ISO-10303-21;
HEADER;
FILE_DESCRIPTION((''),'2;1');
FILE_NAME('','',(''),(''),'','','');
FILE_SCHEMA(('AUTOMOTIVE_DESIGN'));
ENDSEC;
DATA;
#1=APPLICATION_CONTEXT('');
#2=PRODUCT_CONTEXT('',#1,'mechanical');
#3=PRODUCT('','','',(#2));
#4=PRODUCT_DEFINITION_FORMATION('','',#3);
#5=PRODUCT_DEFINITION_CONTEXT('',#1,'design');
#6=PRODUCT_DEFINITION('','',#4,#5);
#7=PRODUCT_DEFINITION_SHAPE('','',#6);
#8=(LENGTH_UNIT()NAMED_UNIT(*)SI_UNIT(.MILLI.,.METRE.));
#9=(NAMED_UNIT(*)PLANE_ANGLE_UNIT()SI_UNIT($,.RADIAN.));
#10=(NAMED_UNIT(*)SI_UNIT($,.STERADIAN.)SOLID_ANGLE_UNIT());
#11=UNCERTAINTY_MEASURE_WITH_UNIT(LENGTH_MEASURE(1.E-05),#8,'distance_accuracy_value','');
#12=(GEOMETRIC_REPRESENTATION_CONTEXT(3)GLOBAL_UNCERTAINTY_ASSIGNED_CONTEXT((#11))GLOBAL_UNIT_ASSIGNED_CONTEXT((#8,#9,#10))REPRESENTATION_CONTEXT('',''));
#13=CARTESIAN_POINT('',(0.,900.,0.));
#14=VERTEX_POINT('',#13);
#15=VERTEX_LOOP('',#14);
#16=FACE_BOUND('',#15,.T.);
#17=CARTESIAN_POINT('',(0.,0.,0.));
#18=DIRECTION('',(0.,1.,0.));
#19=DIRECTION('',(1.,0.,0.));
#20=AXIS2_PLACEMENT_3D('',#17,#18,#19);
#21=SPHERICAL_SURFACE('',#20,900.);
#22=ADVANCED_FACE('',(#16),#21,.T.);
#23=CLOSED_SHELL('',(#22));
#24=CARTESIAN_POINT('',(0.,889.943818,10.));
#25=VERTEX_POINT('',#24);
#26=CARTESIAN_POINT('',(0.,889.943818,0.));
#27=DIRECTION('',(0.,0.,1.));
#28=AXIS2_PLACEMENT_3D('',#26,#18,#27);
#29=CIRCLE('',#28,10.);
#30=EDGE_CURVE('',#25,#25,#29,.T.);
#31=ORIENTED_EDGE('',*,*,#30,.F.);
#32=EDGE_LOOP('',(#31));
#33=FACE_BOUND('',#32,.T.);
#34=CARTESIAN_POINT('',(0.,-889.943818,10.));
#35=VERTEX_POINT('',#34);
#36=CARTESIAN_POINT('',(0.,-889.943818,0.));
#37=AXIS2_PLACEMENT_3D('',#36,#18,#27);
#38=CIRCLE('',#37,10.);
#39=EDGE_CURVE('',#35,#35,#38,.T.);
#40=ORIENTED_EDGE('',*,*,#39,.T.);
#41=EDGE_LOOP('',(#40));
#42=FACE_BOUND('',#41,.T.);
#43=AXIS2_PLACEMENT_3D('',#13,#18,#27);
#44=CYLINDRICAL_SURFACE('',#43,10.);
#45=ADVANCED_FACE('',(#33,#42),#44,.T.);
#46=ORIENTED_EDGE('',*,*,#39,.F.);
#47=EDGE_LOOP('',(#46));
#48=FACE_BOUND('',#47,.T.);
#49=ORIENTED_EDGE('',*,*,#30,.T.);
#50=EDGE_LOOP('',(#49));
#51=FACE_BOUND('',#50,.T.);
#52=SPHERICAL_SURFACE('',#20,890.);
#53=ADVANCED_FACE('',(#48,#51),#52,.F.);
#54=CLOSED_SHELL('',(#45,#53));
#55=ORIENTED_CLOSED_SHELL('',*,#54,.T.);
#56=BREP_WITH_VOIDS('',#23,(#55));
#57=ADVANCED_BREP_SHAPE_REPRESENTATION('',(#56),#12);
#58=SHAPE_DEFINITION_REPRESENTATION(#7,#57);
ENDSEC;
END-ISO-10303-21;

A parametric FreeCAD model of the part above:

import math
import FreeCAD as App
import Part
import Sketcher
from FreeCAD import Vector

doc = App.newDocument("Part")
params = doc.addObject("Spreadsheet::Sheet", "Params")
for row, (alias, value) in enumerate([
    ("sketch1_radius", "900 mm"),
    ("sketch1_radius2", "890 mm"),
    ("revolution_angle", "360 deg"),
], start=1):
    params.set(f"A{row}", alias)
    params.set(f"B{row}", "=" + value)
    params.setAlias(f"B{row}", alias)

body = doc.addObject("PartDesign::Body", "Body")

sketch1 = doc.addObject("Sketcher::SketchObject", "Sketch")
body.addObject(sketch1)
sketch1.AttachmentSupport = (doc.XY_Plane, [""])
sketch1.MapMode = "FlatFace"
sketch1.addGeometry([
    Part.LineSegment(Vector(0, 900, 0), Vector(0, -900, 0)),
    Part.ArcOfCircle(Part.Circle(Vector(0, 0, 0), Vector(0, 0, 1), 900), math.radians(-90), math.radians(90)),
    Part.LineSegment(Vector(10, -890, 0), Vector(10, 890, 0)),
    Part.ArcOfCircle(Part.Circle(Vector(0, 0, 0), Vector(0, 0, 1), 890), math.radians(-89), math.radians(89)),
], False)
sketch1.addConstraint([
    Sketcher.Constraint("Coincident", 0, 1, 1, 2),
    Sketcher.Constraint("Coincident", 1, 1, 0, 2),
    Sketcher.Constraint("Coincident", 2, 1, 3, 1),
    Sketcher.Constraint("Coincident", 3, 2, 2, 2),
    Sketcher.Constraint("Vertical", 0),
    Sketcher.Constraint("Vertical", 2),
    Sketcher.Constraint("Coincident", 1, 3, -1, 1),
    Sketcher.Constraint("Coincident", 3, 3, -1, 1),
    Sketcher.Constraint("PointOnObject", 0, 1, -2),
    Sketcher.Constraint("Radius", 1, 900.0),
    Sketcher.Constraint("Radius", 3, 890.0),
    Sketcher.Constraint("DistanceX", -1, 1, 2, 1, 10.0),
])
sketch1.setExpression("Constraints[9]", "Params.sketch1_radius")
sketch1.setExpression("Constraints[10]", "Params.sketch1_radius2")
revolution = doc.addObject("PartDesign::Revolution", "Revolution")
body.addObject(revolution)
revolution.Profile = sketch1
revolution.ReferenceAxis = (sketch1, ["V_Axis"])
revolution.setExpression("Angle", "Params.revolution_angle")

doc.recompute()
